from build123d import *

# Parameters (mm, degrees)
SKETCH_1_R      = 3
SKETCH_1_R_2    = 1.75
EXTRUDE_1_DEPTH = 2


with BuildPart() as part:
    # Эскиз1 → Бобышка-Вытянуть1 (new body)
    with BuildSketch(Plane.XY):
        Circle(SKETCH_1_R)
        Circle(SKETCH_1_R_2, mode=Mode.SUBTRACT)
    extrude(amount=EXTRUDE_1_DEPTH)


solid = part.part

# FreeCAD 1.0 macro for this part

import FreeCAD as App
import Part
import Sketcher

doc = App.newDocument("Part")
body = doc.addObject("PartDesign::Body", "Body")

# Sketch on XY plane
sketch1 = body.newObject("Sketcher::SketchObject", "Sketch")
sketch1.AttachmentSupport = (doc.getObject("XY_Plane"), [""])
sketch1.MapMode = "FlatFace"
sketch1.addGeometry([
    Part.Circle(App.Vector(0, 0, 0), App.Vector(0, 0, 1), 3),
    Part.Circle(App.Vector(0, 0, 0), App.Vector(0, 0, 1), 1.8),
], False)
sketch1.addConstraint([
    Sketcher.Constraint("Coincident", 0, 3, -1, 1),
    Sketcher.Constraint("Coincident", 1, 3, -1, 1),
    Sketcher.Constraint("Diameter", 0, 6.0),
    Sketcher.Constraint("Diameter", 1, 3.5),
])
pad1 = body.newObject("PartDesign::Pad", "Pad")
pad1.Profile = sketch1
pad1.Length = 2

doc.recompute()
